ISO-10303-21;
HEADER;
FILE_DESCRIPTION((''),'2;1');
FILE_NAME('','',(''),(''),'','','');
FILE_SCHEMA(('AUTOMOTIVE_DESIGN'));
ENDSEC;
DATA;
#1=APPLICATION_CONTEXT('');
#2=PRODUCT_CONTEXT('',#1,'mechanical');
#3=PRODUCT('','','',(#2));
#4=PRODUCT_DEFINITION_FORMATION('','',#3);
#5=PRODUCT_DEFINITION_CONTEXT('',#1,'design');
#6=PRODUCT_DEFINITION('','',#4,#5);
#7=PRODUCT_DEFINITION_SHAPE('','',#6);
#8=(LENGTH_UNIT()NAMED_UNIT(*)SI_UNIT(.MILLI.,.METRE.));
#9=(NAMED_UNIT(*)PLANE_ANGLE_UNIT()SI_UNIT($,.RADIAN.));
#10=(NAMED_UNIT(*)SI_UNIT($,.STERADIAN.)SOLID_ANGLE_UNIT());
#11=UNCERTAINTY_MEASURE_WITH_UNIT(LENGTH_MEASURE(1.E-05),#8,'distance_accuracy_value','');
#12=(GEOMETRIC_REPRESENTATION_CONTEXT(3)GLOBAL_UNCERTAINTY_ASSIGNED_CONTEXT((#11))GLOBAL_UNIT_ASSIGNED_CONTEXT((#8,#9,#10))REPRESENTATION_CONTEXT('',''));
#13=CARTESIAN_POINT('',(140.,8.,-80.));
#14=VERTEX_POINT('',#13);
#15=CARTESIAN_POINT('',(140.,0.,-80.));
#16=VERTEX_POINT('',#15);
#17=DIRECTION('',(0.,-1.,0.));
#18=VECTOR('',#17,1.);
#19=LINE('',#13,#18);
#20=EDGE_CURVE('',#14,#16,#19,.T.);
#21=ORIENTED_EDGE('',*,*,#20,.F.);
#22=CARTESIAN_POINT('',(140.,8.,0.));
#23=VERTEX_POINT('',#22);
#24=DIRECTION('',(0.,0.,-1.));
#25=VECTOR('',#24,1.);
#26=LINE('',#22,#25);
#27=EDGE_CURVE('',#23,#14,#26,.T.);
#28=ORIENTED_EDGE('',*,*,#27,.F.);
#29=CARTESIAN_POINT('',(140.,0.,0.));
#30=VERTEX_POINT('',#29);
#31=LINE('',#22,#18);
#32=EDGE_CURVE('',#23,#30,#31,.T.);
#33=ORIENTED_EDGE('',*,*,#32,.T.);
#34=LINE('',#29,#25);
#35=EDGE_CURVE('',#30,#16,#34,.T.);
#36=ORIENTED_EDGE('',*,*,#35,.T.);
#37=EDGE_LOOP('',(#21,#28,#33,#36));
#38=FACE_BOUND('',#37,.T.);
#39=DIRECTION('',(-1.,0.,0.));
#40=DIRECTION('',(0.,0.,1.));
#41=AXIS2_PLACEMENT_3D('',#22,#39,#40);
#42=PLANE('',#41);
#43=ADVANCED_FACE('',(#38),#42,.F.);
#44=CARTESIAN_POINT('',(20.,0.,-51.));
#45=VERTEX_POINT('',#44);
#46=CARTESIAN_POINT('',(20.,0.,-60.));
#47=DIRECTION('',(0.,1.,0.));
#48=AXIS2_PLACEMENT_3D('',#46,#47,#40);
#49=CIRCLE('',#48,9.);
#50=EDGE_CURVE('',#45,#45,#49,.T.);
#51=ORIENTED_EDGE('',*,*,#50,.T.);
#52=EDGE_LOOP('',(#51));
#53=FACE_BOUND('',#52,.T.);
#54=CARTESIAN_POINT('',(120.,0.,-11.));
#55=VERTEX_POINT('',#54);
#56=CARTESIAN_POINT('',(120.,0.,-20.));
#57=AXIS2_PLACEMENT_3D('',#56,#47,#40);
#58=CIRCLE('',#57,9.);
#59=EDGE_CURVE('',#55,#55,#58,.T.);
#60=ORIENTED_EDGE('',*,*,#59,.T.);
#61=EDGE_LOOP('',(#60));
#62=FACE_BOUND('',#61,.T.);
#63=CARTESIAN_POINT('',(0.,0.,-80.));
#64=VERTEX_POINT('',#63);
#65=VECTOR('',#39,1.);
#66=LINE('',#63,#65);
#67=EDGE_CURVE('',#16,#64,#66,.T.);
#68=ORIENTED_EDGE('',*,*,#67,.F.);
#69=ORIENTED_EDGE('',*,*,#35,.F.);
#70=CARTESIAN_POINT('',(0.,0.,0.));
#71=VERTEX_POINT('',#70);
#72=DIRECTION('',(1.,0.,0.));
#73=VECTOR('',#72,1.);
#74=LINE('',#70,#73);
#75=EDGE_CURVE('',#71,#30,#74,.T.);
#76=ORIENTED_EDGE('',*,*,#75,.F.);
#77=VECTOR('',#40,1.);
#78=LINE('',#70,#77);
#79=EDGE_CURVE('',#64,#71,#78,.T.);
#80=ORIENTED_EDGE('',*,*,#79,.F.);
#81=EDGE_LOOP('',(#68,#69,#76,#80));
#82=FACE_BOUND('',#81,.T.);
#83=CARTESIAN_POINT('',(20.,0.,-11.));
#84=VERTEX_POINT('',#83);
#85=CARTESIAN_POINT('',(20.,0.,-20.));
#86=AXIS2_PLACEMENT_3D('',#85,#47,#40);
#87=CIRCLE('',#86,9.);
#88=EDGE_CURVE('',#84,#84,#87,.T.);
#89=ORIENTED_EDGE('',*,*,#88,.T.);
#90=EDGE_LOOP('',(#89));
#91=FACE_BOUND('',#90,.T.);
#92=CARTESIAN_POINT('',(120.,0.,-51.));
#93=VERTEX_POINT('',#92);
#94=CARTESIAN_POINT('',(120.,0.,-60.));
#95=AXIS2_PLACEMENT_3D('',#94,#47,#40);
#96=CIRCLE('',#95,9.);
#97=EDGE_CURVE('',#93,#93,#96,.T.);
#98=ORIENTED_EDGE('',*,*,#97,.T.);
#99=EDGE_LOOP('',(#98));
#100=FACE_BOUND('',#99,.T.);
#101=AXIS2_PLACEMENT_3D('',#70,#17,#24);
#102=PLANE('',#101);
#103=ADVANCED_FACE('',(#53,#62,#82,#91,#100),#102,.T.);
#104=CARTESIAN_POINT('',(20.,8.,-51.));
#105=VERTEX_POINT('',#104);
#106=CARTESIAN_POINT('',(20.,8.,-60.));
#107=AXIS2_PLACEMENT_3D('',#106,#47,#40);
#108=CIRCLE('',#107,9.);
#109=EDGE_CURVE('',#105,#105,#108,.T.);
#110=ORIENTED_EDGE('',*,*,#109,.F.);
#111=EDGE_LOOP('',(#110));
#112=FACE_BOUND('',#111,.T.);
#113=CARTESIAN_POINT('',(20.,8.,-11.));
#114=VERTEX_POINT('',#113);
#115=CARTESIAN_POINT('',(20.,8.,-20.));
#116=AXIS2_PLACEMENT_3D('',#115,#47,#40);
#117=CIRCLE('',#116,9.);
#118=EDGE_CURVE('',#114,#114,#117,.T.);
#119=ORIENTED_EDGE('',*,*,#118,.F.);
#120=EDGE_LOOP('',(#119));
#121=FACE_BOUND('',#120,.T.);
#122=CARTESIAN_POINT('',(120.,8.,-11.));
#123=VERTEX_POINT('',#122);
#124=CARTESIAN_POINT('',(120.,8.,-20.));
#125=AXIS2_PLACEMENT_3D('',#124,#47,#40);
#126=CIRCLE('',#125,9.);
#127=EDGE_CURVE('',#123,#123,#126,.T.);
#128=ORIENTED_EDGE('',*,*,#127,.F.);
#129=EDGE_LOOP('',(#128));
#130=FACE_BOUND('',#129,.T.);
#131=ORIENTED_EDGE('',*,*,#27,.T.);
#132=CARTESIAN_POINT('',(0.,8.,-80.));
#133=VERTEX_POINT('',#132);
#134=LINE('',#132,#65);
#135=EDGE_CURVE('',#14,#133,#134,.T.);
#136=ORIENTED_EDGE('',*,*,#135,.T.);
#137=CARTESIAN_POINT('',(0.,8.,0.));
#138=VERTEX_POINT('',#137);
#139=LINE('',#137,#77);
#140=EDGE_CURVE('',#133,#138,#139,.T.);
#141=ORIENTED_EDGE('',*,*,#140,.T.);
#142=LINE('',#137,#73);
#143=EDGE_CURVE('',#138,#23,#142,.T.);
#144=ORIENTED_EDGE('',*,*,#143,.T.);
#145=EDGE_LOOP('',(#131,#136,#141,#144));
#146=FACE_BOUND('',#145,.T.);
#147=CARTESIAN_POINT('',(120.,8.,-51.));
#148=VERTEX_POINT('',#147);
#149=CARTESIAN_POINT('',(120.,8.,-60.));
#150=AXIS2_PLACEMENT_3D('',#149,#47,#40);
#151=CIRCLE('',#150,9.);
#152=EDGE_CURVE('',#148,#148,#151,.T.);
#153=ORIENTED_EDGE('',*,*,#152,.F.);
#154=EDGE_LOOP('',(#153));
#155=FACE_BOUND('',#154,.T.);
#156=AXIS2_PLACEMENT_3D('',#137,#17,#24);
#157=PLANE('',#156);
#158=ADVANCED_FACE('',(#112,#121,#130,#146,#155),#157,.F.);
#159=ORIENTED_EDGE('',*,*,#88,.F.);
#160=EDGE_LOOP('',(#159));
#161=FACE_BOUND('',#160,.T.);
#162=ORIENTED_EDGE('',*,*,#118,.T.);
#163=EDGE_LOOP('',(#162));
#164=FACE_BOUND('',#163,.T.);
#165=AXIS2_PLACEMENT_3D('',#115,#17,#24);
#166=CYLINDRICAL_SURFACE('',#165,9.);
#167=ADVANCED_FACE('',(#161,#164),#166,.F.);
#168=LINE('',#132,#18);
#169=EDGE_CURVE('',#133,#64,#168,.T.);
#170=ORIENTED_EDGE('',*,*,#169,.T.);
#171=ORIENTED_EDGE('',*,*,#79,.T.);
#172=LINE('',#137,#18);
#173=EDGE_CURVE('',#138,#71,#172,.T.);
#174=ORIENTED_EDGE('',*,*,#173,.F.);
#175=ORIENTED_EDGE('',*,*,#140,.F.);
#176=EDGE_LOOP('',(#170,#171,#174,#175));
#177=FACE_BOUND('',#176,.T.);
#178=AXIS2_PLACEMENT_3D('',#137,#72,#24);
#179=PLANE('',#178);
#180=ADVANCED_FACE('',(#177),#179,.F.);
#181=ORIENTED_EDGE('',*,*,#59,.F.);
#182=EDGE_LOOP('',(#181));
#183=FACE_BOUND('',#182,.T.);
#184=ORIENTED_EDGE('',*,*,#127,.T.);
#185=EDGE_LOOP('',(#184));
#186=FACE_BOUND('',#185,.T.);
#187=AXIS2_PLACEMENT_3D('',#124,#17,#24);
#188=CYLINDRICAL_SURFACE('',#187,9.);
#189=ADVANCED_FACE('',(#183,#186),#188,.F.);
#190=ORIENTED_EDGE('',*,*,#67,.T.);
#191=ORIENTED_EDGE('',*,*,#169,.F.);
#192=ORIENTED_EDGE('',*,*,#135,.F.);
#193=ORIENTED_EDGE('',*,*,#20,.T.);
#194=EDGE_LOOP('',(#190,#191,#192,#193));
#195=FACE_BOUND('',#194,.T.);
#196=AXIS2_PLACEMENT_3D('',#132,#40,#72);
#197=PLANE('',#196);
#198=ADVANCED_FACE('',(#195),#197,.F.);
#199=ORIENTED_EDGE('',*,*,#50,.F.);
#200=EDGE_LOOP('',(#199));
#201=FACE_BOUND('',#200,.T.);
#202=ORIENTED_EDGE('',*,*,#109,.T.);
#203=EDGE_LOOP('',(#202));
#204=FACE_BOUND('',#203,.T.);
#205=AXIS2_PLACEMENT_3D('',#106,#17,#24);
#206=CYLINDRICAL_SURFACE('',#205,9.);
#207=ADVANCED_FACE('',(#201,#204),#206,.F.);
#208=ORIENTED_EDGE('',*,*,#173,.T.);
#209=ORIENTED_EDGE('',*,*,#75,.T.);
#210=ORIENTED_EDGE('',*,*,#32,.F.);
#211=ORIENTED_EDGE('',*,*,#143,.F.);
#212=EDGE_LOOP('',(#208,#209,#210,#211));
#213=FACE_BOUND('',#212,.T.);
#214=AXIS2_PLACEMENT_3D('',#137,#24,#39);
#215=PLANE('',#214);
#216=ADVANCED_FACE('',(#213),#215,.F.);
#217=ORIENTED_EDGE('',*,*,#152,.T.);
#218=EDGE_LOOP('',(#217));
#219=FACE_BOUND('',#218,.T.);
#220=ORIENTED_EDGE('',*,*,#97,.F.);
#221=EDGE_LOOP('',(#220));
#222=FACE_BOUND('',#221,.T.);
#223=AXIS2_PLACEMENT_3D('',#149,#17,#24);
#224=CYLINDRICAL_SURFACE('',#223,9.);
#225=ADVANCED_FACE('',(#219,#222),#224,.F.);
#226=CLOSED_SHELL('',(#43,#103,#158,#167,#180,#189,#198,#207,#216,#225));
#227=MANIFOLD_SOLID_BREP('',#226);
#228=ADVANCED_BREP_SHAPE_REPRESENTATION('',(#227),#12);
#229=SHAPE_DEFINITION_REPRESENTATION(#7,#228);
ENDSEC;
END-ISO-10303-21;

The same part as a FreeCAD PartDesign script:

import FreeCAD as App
import Part
import Sketcher
from FreeCAD import Vector
Q = App.Units.Quantity


def add_polygon(sketch, points):
    """Adds a closed chain of lines whose ends are joined by coincident constraints."""
    first, n = sketch.GeometryCount, len(points)
    for a, b in zip(points, points[1:] + points[:1]):
        sketch.addGeometry(Part.LineSegment(App.Vector(*a, 0), App.Vector(*b, 0)), False)
    for i in range(n):
        sketch.addConstraint(Sketcher.Constraint("Coincident", first + i, 2, first + (i + 1) % n, 1))

doc = App.newDocument("Part")
params = doc.addObject("Spreadsheet::Sheet", "Params")
for row, (alias, value) in enumerate([
    ("sketch1_diameter", "18 mm"),
    ("sketch1_width", "140 mm"),
    ("sketch1_height", "80 mm"),
    ("pad1_length", "8 mm"),
], start=1):
    params.set(f"A{row}", alias)
    params.set(f"B{row}", "=" + value)
    params.setAlias(f"B{row}", alias)

body = doc.addObject("PartDesign::Body", "Body")

# Sketch on XZ plane
sketch1 = body.newObject("Sketcher::SketchObject", "Sketch")
sketch1.AttachmentSupport = (doc.getObject("XZ_Plane"), [""])
sketch1.MapMode = "FlatFace"
add_polygon(sketch1, [(0, -80), (0, 0), (140, 0), (140, -80)])  # lines 0-3
sketch1.addGeometry(Part.Circle(Vector(20, -20, 0), Vector(0, 0, 1), 9), False)  # 4
sketch1.addGeometry(Part.Circle(Vector(120, -20, 0), Vector(0, 0, 1), 9), False)  # 5
sketch1.addGeometry(Part.Circle(Vector(20, -60, 0), Vector(0, 0, 1), 9), False)  # 6
sketch1.addGeometry(Part.Circle(Vector(120, -60, 0), Vector(0, 0, 1), 9), False)  # 7
sketch1.addConstraint([
    Sketcher.Constraint("Vertical", 0),
    Sketcher.Constraint("Horizontal", 1),
    Sketcher.Constraint("Vertical", 2),
    Sketcher.Constraint("Horizontal", 3),
    Sketcher.Constraint("Coincident", 0, 2, -1, 1),
    Sketcher.Constraint("Equal", 4, 5),
    Sketcher.Constraint("Equal", 5, 6),
    Sketcher.Constraint("Equal", 6, 7),
    Sketcher.Constraint("Horizontal", 4, 3, 5, 3),
    Sketcher.Constraint("Horizontal", 6, 3, 7, 3),
    Sketcher.Constraint("Vertical", 4, 3, 6, 3),
    Sketcher.Constraint("Vertical", 5, 3, 7, 3),
    Sketcher.Constraint("Diameter", 4, Q("18 mm")),
    Sketcher.Constraint("DistanceX", 1, 1, 1, 2, Q("140 mm")),
    Sketcher.Constraint("DistanceY", 0, 1, 0, 2, Q("80 mm")),
    Sketcher.Constraint("DistanceX", -1, 1, 4, 3, Q("20 mm")),
    Sketcher.Constraint("DistanceY", 4, 3, -1, 1, Q("20 mm")),
    Sketcher.Constraint("DistanceX", -1, 1, 5, 3, Q("120 mm")),
    Sketcher.Constraint("DistanceY", 6, 3, -1, 1, Q("60 mm")),
])
sketch1.setExpression("Constraints[16]", "Params.sketch1_diameter")
sketch1.setExpression("Constraints[17]", "Params.sketch1_width")
sketch1.setExpression("Constraints[18]", "Params.sketch1_height")
pad1 = body.newObject("PartDesign::Pad", "Pad")
pad1.Profile = sketch1
pad1.setExpression("Length", "Params.pad1_length")
pad1.Reversed = True

doc.recompute()
